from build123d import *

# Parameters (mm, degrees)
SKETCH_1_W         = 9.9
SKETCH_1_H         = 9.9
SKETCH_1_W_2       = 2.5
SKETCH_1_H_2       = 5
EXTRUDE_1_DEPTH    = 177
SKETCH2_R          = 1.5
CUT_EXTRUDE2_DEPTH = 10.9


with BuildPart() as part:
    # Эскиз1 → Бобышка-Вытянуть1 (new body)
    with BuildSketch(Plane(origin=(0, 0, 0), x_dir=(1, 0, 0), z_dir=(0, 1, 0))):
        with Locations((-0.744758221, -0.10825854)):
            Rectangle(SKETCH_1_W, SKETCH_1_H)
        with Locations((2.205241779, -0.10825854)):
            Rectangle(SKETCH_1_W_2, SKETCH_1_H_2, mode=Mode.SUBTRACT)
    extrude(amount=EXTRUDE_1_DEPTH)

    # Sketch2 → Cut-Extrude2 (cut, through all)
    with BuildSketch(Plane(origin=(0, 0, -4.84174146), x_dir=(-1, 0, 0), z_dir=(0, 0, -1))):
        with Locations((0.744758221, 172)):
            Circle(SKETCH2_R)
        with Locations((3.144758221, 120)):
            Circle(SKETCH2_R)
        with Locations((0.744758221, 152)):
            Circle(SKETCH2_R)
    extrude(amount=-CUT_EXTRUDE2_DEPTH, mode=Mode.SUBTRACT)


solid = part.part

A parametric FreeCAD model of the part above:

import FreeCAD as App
import Part
import Sketcher
Q = App.Units.Quantity


def add_polygon(sketch, points):
    """Adds a closed chain of lines whose ends are joined by coincident constraints."""
    first, n = sketch.GeometryCount, len(points)
    for a, b in zip(points, points[1:] + points[:1]):
        sketch.addGeometry(Part.LineSegment(App.Vector(*a, 0), App.Vector(*b, 0)), False)
    for i in range(n):
        sketch.addConstraint(Sketcher.Constraint("Coincident", first + i, 2, first + (i + 1) % n, 1))

doc = App.newDocument("Part")
body = doc.addObject("PartDesign::Body", "Body")

# Sketch on XZ plane
sketch1 = body.newObject("Sketcher::SketchObject", "Sketch")
sketch1.AttachmentSupport = (doc.getObject("XZ_Plane"), [""])
sketch1.MapMode = "FlatFace"
add_polygon(sketch1, [(-5.7, -4.8), (-5.7, 5.1), (4.2, 5.1), (4.2, -4.8)])  # lines 0-3
add_polygon(sketch1, [(3.5, 2.6), (1, 2.6), (1, -2.4), (3.5, -2.4)])  # lines 4-7
sketch1.addConstraint([
    Sketcher.Constraint("Vertical", 0),
    Sketcher.Constraint("Horizontal", 1),
    Sketcher.Constraint("Vertical", 2),
    Sketcher.Constraint("Horizontal", 3),
    Sketcher.Constraint("Horizontal", 4),
    Sketcher.Constraint("Vertical", 5),
    Sketcher.Constraint("Horizontal", 6),
    Sketcher.Constraint("Vertical", 7),
    Sketcher.Constraint("Equal", 3, 0),
    Sketcher.Constraint("DistanceY", 5, 2, 5, 1, Q("5 mm")),
    Sketcher.Constraint("DistanceX", 1, 1, 1, 2, Q("9.9 mm")),
    Sketcher.Constraint("DistanceX", 4, 2, 4, 1, Q("2.5 mm")),
    Sketcher.Constraint("DistanceX", 4, 2, 1, 2, Q("3.25 mm")),
    Sketcher.Constraint("DistanceY", 4, 2, 1, 2, Q("2.45 mm")),
    Sketcher.Constraint("DistanceX", 0, 2, -1, 1, Q("5.694758 mm")),
    Sketcher.Constraint("DistanceY", -1, 1, 0, 2, Q("5.058259 mm")),
])
pad1 = body.newObject("PartDesign::Pad", "Pad")
pad1.Profile = sketch1
pad1.Length = 177
pad1.Reversed = True

# Sketch on XY plane
sketch2 = body.newObject("Sketcher::SketchObject", "Sketch001")
sketch2.AttachmentSupport = (doc.getObject("XY_Plane"), [""])
sketch2.MapMode = "FlatFace"
sketch2.AttachmentOffset = App.Placement(App.Vector(0, 0, -4.841741), App.Rotation())
sketch2.addGeometry([
    Part.Circle(App.Vector(-0.7, 172, 0), App.Vector(0, 0, 1), 1.5),
    Part.Circle(App.Vector(-3.1, 120, 0), App.Vector(0, 0, 1), 1.5),
    Part.Circle(App.Vector(-0.7, 152, 0), App.Vector(0, 0, 1), 1.5),
], False)
sketch2.addConstraint([
    Sketcher.Constraint("Equal", 0, 1),
    Sketcher.Constraint("Equal", 1, 2),
    Sketcher.Constraint("Vertical", 0, 3, 2, 3),
    Sketcher.Constraint("Diameter", 0, Q("3 mm")),
    Sketcher.Constraint("DistanceY", -1, 1, 0, 3, Q("172 mm")),
    Sketcher.Constraint("DistanceY", -1, 1, 1, 3, Q("120 mm")),
    Sketcher.Constraint("DistanceY", -1, 1, 2, 3, Q("152 mm")),
    Sketcher.Constraint("DistanceX", 1, 3, 0, 3, Q("2.4 mm")),
    Sketcher.Constraint("DistanceX", 0, 3, -1, 1, Q("0.744758 mm")),
])
pocket1 = body.newObject("PartDesign::Pocket", "Pocket")
pocket1.Profile = sketch2
pocket1.Type = "ThroughAll"
pocket1.Reversed = True

doc.recompute()
